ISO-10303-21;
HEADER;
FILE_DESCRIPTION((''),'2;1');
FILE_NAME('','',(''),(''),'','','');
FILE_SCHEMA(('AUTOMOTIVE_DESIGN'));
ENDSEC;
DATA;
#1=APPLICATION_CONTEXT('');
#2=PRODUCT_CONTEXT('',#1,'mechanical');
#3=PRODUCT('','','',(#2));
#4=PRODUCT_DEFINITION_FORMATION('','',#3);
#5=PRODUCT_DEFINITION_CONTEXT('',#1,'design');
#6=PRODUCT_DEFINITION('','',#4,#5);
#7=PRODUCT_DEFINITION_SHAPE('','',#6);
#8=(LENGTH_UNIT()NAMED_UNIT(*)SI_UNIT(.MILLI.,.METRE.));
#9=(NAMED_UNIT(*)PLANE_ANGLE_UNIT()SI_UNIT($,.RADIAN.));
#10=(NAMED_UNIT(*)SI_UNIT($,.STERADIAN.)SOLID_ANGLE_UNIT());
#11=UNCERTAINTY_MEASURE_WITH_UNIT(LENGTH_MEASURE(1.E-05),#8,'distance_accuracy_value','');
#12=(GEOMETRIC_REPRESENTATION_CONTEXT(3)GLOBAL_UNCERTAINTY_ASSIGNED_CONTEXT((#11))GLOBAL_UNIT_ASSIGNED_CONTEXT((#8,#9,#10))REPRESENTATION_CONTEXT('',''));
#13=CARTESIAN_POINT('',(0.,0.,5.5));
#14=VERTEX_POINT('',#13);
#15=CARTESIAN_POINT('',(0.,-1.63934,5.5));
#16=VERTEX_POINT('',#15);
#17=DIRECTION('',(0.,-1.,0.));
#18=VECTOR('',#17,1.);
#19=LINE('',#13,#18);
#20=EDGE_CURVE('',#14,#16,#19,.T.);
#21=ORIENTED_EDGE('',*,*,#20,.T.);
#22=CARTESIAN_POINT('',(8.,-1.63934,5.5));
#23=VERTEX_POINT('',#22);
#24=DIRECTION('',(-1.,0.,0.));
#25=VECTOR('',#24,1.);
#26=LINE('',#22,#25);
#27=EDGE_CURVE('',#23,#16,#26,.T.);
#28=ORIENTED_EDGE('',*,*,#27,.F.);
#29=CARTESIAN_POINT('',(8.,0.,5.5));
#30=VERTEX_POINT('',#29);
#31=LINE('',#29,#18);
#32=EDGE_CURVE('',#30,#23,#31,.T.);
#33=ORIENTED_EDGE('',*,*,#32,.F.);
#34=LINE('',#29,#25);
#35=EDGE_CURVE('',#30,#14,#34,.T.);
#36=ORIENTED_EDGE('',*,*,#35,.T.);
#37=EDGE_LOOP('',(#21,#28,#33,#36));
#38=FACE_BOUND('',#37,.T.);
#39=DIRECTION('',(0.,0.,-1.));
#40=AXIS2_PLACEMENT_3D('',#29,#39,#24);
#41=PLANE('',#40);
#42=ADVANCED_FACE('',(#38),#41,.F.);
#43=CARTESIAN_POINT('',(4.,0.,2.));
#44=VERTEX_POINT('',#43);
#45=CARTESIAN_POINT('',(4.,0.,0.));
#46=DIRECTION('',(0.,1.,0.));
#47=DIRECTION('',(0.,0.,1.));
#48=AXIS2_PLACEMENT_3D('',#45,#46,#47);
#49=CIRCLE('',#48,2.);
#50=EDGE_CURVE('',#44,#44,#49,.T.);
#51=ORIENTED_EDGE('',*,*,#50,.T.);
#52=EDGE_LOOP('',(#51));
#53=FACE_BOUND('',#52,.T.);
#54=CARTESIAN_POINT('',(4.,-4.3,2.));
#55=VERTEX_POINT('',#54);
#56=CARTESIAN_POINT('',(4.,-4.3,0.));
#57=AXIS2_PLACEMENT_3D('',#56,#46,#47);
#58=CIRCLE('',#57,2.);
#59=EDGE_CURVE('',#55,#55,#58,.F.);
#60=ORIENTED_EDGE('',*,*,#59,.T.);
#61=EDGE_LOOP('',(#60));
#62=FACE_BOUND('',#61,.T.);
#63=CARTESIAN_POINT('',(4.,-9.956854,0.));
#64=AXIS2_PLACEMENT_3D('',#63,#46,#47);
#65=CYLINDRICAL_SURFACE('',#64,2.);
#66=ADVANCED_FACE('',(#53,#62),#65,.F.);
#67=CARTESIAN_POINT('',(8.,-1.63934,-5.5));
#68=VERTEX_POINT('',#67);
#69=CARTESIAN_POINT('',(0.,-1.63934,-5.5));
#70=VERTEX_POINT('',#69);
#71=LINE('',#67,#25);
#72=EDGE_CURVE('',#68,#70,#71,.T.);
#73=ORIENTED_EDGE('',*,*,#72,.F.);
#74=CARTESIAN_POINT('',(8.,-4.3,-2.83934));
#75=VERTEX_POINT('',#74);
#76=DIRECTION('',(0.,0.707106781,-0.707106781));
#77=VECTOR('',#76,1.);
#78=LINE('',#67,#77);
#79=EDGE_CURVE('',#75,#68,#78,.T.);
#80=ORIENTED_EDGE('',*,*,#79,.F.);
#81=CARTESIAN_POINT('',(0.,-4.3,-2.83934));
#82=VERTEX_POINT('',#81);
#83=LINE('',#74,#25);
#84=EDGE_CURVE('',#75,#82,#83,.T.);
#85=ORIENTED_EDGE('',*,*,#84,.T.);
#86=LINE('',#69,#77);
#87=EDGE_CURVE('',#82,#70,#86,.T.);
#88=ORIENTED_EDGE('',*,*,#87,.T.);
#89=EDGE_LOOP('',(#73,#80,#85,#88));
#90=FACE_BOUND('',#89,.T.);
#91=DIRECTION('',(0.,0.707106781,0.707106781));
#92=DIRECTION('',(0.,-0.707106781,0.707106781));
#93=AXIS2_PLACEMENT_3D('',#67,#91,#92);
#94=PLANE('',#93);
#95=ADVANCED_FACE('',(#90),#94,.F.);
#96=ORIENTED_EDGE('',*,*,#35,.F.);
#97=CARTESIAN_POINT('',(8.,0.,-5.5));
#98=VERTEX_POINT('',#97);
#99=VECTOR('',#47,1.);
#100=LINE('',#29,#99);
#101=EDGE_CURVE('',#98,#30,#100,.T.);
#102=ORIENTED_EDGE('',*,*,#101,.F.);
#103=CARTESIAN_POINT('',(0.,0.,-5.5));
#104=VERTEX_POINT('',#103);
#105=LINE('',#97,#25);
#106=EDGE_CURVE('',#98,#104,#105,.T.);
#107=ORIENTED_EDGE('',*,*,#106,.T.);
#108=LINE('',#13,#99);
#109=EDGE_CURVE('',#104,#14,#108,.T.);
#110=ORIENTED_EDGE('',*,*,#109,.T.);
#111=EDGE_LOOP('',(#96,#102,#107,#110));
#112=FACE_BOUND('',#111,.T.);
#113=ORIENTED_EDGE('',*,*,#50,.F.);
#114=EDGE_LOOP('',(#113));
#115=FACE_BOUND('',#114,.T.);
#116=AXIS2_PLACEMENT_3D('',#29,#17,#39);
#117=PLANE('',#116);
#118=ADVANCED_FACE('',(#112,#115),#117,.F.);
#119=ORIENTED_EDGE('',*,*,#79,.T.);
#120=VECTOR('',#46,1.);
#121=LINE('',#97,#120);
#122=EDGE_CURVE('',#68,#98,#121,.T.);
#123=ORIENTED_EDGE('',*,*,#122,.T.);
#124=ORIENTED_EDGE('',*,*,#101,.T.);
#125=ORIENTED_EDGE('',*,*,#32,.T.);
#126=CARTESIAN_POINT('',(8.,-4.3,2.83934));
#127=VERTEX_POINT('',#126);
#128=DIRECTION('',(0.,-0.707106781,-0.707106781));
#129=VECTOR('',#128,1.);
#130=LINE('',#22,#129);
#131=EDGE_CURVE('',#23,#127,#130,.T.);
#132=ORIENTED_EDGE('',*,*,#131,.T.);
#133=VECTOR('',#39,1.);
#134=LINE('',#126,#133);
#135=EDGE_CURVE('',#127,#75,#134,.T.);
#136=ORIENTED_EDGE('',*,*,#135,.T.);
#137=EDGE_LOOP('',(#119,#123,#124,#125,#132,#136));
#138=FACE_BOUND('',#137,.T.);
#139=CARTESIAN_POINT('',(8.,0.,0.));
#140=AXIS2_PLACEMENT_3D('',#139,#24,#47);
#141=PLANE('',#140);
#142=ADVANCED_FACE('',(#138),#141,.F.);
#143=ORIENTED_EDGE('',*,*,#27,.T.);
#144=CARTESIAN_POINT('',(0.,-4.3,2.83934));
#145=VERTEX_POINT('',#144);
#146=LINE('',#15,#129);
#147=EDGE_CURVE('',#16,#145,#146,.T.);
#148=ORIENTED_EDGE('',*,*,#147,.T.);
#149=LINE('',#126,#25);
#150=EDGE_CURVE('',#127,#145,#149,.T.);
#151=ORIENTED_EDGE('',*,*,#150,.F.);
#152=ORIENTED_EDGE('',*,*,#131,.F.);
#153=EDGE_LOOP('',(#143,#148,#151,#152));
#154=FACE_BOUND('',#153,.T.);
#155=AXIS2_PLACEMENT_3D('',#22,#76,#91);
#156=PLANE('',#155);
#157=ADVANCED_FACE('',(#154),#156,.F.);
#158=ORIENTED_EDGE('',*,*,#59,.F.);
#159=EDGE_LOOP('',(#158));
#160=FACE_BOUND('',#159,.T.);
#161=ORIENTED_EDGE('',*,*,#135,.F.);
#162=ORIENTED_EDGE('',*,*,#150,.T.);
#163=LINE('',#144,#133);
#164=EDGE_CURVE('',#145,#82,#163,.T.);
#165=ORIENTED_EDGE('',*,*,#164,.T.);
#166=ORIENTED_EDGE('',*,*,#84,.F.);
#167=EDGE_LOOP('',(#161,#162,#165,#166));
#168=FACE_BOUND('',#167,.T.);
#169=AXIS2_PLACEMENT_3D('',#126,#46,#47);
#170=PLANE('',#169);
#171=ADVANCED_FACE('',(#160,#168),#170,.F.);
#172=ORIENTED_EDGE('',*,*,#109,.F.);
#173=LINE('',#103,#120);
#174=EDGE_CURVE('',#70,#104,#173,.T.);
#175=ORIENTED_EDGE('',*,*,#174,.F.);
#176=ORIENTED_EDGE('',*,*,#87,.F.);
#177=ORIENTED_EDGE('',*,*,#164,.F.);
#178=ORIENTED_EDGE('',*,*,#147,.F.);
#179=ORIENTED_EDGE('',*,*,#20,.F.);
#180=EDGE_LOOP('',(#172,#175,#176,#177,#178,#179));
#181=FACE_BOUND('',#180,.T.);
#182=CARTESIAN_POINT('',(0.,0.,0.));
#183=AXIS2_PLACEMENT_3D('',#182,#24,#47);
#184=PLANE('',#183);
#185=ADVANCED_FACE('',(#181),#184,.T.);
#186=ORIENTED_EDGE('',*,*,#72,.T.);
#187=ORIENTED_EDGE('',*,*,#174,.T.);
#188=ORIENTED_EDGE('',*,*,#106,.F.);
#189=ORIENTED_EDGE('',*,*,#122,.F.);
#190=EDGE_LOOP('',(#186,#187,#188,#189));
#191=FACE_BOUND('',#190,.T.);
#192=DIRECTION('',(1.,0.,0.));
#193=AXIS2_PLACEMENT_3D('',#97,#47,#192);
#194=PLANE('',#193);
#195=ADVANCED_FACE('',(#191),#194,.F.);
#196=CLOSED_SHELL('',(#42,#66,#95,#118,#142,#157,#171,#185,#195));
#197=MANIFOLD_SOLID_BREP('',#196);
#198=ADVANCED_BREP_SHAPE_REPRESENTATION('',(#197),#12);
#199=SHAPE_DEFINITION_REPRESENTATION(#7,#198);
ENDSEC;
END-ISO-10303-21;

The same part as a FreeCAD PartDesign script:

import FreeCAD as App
import Part
import Sketcher

V = App.Vector


def add_polygon(sketch, points):
    """Adds a closed chain of lines whose ends are joined by coincident constraints."""
    first, n = sketch.GeometryCount, len(points)
    for a, b in zip(points, points[1:] + points[:1]):
        sketch.addGeometry(Part.LineSegment(App.Vector(*a, 0), App.Vector(*b, 0)), False)
    for i in range(n):
        sketch.addConstraint(Sketcher.Constraint("Coincident", first + i, 2, first + (i + 1) % n, 1))

doc = App.newDocument("Part")
body = doc.addObject("PartDesign::Body", "Body")

# Sketch on YZ plane
sketch1 = body.newObject("Sketcher::SketchObject", "Sketch")
sketch1.AttachmentSupport = (doc.getObject("YZ_Plane"), [""])
sketch1.MapMode = "FlatFace"
add_polygon(sketch1, [(-4.3, 2.8), (-4.3, -2.8), (-1.6, -5.5), (0, -5.5), (0, 5.5), (-1.6, 5.5)])  # lines 0-5
sketch1.addConstraint([
    Sketcher.Constraint("Vertical", 0),
    Sketcher.Constraint("Horizontal", 2),
    Sketcher.Constraint("Vertical", 3),
    Sketcher.Constraint("Horizontal", 4),
    Sketcher.Constraint("Symmetric", 2, 2, 3, 2, -1, 1),
    Sketcher.Constraint("Perpendicular", 1, 5),
    Sketcher.Constraint("Vertical", 1, 2, 4, 2),
    Sketcher.Constraint("Equal", 1, 5),
    Sketcher.Constraint("DistanceY", 3, 1, 3, 2, 11.0),
    Sketcher.Constraint("DistanceX", 0, 2, -1, 1, 4.3),
    Sketcher.Constraint("DistanceX", 2, 1, 2, 2, 1.63934),
])
pad1 = body.newObject("PartDesign::Pad", "Pad")
pad1.Profile = sketch1
pad1.Length = 8

# Sketch on XZ plane
sketch2 = body.newObject("Sketcher::SketchObject", "Sketch001")
sketch2.AttachmentSupport = (doc.getObject("XZ_Plane"), [""])
sketch2.MapMode = "FlatFace"
sketch2.addGeometry(Part.Circle(V(4, 0, 0), V(0, 0, 1), 2), False)
sketch2.addConstraint([
    Sketcher.Constraint("PointOnObject", 0, 3, -1),
    Sketcher.Constraint("Diameter", 0, 4.0),
    Sketcher.Constraint("DistanceX", -1, 1, 0, 3, 4.0),
])
pocket1 = body.newObject("PartDesign::Pocket", "Pocket")
pocket1.Profile = sketch2
pocket1.Length = 4.3
pocket1.Reversed = True

doc.recompute()
